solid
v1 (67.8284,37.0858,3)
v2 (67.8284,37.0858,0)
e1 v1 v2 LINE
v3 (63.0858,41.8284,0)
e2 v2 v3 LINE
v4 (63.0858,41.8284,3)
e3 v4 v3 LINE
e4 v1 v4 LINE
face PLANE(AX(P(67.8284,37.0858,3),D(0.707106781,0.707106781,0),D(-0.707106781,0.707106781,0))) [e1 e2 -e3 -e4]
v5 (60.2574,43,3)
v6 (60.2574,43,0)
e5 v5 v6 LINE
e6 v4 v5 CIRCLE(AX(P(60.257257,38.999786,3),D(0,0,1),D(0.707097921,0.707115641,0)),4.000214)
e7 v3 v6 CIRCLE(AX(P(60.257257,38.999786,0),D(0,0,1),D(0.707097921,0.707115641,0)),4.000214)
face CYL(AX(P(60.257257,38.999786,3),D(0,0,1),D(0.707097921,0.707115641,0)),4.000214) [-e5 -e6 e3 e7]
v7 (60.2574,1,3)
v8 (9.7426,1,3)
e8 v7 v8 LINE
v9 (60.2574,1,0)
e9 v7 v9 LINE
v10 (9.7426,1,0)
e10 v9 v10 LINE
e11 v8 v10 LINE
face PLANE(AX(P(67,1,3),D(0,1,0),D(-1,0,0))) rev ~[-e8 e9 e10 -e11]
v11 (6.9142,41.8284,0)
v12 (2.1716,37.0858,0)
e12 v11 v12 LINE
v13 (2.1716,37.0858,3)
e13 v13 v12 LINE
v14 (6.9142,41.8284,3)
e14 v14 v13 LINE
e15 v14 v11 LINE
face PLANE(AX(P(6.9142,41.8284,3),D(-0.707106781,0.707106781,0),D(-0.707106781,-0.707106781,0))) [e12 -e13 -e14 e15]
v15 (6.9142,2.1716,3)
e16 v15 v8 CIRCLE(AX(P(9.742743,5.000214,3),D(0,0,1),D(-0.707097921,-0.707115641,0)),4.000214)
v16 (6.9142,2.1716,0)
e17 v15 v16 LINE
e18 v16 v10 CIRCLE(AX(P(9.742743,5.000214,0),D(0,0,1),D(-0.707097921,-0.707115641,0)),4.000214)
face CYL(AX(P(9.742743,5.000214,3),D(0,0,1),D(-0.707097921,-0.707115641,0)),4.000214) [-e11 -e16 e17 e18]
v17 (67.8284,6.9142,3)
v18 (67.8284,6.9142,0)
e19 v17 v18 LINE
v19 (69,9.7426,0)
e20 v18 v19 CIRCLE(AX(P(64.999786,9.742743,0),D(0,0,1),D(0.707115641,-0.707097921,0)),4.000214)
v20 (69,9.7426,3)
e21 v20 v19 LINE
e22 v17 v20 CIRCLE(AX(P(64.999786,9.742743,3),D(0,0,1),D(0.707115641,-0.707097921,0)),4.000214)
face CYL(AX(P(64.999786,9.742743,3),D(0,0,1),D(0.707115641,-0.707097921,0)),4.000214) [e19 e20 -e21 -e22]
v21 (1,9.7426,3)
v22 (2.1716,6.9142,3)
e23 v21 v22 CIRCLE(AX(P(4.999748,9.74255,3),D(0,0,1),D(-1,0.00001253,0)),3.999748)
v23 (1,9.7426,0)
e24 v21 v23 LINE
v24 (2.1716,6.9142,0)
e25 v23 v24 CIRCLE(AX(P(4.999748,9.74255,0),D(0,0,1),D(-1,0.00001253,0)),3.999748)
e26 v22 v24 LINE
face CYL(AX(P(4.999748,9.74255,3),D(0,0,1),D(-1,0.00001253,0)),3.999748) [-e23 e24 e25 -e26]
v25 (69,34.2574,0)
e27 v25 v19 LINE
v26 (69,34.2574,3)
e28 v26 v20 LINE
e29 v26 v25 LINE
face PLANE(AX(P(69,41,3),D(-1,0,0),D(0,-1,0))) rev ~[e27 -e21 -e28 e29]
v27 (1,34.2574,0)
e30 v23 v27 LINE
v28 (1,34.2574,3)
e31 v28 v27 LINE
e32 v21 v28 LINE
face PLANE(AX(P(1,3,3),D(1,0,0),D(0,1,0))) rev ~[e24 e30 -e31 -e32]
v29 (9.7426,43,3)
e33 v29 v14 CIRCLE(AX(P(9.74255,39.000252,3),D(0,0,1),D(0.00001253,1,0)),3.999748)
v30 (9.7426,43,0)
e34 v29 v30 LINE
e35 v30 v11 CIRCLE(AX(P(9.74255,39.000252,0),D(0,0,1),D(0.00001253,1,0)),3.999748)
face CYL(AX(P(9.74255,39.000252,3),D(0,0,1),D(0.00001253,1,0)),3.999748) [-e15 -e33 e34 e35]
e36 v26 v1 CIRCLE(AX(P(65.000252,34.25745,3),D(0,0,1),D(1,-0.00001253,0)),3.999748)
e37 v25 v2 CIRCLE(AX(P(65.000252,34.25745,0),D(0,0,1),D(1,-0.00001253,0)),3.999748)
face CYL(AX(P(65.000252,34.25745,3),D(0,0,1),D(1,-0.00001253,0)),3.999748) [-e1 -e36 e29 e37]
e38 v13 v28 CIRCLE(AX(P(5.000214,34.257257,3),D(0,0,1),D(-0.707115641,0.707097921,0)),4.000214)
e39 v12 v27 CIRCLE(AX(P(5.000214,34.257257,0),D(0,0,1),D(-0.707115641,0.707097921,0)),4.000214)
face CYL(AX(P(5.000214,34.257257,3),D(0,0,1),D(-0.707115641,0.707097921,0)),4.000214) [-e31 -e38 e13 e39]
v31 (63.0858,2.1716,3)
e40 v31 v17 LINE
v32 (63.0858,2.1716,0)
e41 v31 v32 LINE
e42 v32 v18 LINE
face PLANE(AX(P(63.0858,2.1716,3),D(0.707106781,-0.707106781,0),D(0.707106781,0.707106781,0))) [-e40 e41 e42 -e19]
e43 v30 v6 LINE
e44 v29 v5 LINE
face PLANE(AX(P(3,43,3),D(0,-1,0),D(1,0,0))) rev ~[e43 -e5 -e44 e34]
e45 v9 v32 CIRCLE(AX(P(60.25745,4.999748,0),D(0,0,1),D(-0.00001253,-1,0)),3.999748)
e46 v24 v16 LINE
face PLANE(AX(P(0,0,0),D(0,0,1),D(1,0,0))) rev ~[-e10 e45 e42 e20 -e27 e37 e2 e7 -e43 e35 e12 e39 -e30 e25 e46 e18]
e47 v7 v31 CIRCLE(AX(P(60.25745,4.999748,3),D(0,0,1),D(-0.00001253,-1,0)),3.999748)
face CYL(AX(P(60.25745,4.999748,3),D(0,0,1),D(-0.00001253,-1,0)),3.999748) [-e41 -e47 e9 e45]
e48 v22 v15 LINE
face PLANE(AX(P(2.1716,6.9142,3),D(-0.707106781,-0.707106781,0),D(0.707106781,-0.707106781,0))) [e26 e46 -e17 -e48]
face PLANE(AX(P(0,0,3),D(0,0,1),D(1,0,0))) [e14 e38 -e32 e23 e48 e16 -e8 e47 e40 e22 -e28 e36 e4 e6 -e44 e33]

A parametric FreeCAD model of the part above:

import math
import FreeCAD as App
import Part
import Sketcher

V = App.Vector

doc = App.newDocument("Part")
body = doc.addObject("PartDesign::Body", "Body")

# Sketch on XY plane
sketch1 = body.newObject("Sketcher::SketchObject", "Sketch")
sketch1.AttachmentSupport = (doc.getObject("XY_Plane"), [""])
sketch1.MapMode = "FlatFace"
sketch1.addGeometry([
    Part.ArcOfCircle(Part.Circle(V(3, 3, 0), V(0, 0, 1), 3), math.radians(180), math.radians(270)),  # 0
    Part.LineSegment(V(3, 0, 0), V(67, 0, 0)),  # 1
    Part.ArcOfCircle(Part.Circle(V(67, 3, 0), V(0, 0, 1), 3), math.radians(-90), math.radians(0)),  # 2
    Part.LineSegment(V(70, 3, 0), V(70, 41, 0)),  # 3
    Part.ArcOfCircle(Part.Circle(V(67, 41, 0), V(0, 0, 1), 3), math.radians(0), math.radians(90)),  # 4
    Part.LineSegment(V(67, 44, 0), V(3, 44, 0)),  # 5
    Part.ArcOfCircle(Part.Circle(V(3, 41, 0), V(0, 0, 1), 3), math.radians(90), math.radians(180)),  # 6
    Part.LineSegment(V(0, 41, 0), V(0, 3, 0)),  # 7
], False)
sketch1.addConstraint([
    Sketcher.Constraint("Tangent", 0, 2, 1, 1),
    Sketcher.Constraint("Tangent", 1, 2, 2, 1),
    Sketcher.Constraint("Tangent", 2, 2, 3, 1),
    Sketcher.Constraint("Tangent", 3, 2, 4, 1),
    Sketcher.Constraint("Tangent", 4, 2, 5, 1),
    Sketcher.Constraint("Tangent", 5, 2, 6, 1),
    Sketcher.Constraint("Tangent", 6, 2, 7, 1),
    Sketcher.Constraint("Tangent", 7, 2, 0, 1),
    Sketcher.Constraint("Horizontal", 1),
    Sketcher.Constraint("Vertical", 3),
    Sketcher.Constraint("Horizontal", 5),
    Sketcher.Constraint("Vertical", 7),
    Sketcher.Constraint("Equal", 0, 2),
    Sketcher.Constraint("Equal", 2, 4),
    Sketcher.Constraint("Equal", 4, 6),
    Sketcher.Constraint("PointOnObject", 0, 2, -1),
    Sketcher.Constraint("PointOnObject", 6, 2, -2),
    Sketcher.Constraint("Radius", 0, 3.0),
    Sketcher.Constraint("DistanceX", -1, 1, 2, 2, 70.0),
    Sketcher.Constraint("DistanceY", -1, 1, 4, 2, 44.0),
])
pad1 = body.newObject("PartDesign::Pad", "Pad")
pad1.Profile = sketch1
pad1.Length = 3

# Sketch on XY plane
sketch2 = body.newObject("Sketcher::SketchObject", "Sketch001")
sketch2.AttachmentSupport = (doc.getObject("XY_Plane"), [""])
sketch2.MapMode = "FlatFace"
sketch2.AttachmentOffset = App.Placement(V(0, 0, 3), App.Rotation())
sketch2.addGeometry([
    Part.ArcOfCircle(Part.Circle(V(3, 41, 0), V(0, 0, 1), 3), math.radians(90), math.radians(180)),  # 0
    Part.LineSegment(V(0, 41, 0), V(0, 3, 0)),  # 1
    Part.ArcOfCircle(Part.Circle(V(3, 3, 0), V(0, 0, 1), 3), math.radians(180), math.radians(270)),  # 2
    Part.LineSegment(V(3, 0, 0), V(67, 0, 0)),  # 3
    Part.ArcOfCircle(Part.Circle(V(67, 3, 0), V(0, 0, 1), 3), math.radians(-90), math.radians(0)),  # 4
    Part.LineSegment(V(70, 3, 0), V(70, 41, 0)),  # 5
    Part.ArcOfCircle(Part.Circle(V(67, 41, 0), V(0, 0, 1), 3), math.radians(0), math.radians(90)),  # 6
    Part.LineSegment(V(67, 44, 0), V(3, 44, 0)),  # 7
    Part.ArcOfCircle(Part.Circle(V(3, 41, 0), V(0, 0, 1), 2), math.radians(90), math.radians(180)),  # 8
    Part.LineSegment(V(3, 43, 0), V(67, 43, 0)),  # 9
    Part.ArcOfCircle(Part.Circle(V(67, 41, 0), V(0, 0, 1), 2), math.radians(0), math.radians(90)),  # 10
    Part.LineSegment(V(69, 41, 0), V(69, 3, 0)),  # 11
    Part.ArcOfCircle(Part.Circle(V(67, 3, 0), V(0, 0, 1), 2), math.radians(-90), math.radians(0)),  # 12
    Part.LineSegment(V(67, 1, 0), V(3, 1, 0)),  # 13
    Part.ArcOfCircle(Part.Circle(V(3, 3, 0), V(0, 0, 1), 2), math.radians(180), math.radians(270)),  # 14
    Part.LineSegment(V(1, 3, 0), V(1, 41, 0)),  # 15
], False)
sketch2.addConstraint([
    Sketcher.Constraint("Tangent", 0, 2, 1, 1),
    Sketcher.Constraint("Tangent", 1, 2, 2, 1),
    Sketcher.Constraint("Tangent", 2, 2, 3, 1),
    Sketcher.Constraint("Tangent", 3, 2, 4, 1),
    Sketcher.Constraint("Tangent", 4, 2, 5, 1),
    Sketcher.Constraint("Tangent", 5, 2, 6, 1),
    Sketcher.Constraint("Tangent", 6, 2, 7, 1),
    Sketcher.Constraint("Tangent", 7, 2, 0, 1),
    Sketcher.Constraint("Tangent", 8, 1, 9, 1),
    Sketcher.Constraint("Tangent", 9, 2, 10, 2),
    Sketcher.Constraint("Tangent", 10, 1, 11, 1),
    Sketcher.Constraint("Tangent", 11, 2, 12, 2),
    Sketcher.Constraint("Tangent", 12, 1, 13, 1),
    Sketcher.Constraint("Tangent", 13, 2, 14, 2),
    Sketcher.Constraint("Tangent", 14, 1, 15, 1),
    Sketcher.Constraint("Tangent", 15, 2, 8, 2),
    Sketcher.Constraint("Vertical", 1),
    Sketcher.Constraint("Horizontal", 3),
    Sketcher.Constraint("Vertical", 5),
    Sketcher.Constraint("Horizontal", 7),
    Sketcher.Constraint("Horizontal", 9),
    Sketcher.Constraint("Vertical", 11),
    Sketcher.Constraint("Horizontal", 13),
    Sketcher.Constraint("Vertical", 15),
    Sketcher.Constraint("Coincident", 8, 3, 0, 3),
    Sketcher.Constraint("Coincident", 10, 3, 6, 3),
    Sketcher.Constraint("Coincident", 12, 3, 4, 3),
    Sketcher.Constraint("Equal", 0, 2),
    Sketcher.Constraint("Equal", 2, 4),
    Sketcher.Constraint("Equal", 4, 6),
    Sketcher.Constraint("Equal", 12, 14),
    Sketcher.Constraint("PointOnObject", 0, 2, -2),
    Sketcher.Constraint("PointOnObject", 2, 2, -1),
    Sketcher.Constraint("DistanceY", -1, 1, 12, 1, 1.0),
    Sketcher.Constraint("Radius", 0, 3.0),
    Sketcher.Constraint("DistanceX", 3, 1, 3, 2, 64.0),
    Sketcher.Constraint("DistanceY", 1, 2, 1, 1, 38.0),
])
pocket1 = body.newObject("PartDesign::Pocket", "Pocket")
pocket1.Profile = sketch2
pocket1.Type = "ThroughAll"

# Sketch on XY plane
sketch3 = body.newObject("Sketcher::SketchObject", "Sketch002")
sketch3.AttachmentSupport = (doc.getObject("XY_Plane"), [""])
sketch3.MapMode = "FlatFace"
sketch3.AttachmentOffset = App.Placement(V(0, 0, 3), App.Rotation())
sketch3.addGeometry([
    Part.LineSegment(V(9.7426, 43, 0), V(3, 43, 0)),  # 0
    Part.ArcOfCircle(Part.Circle(V(3, 41, 0), V(0, 0, 1), 2), math.radians(90), math.radians(180)),  # 1
    Part.LineSegment(V(1, 41, 0), V(1, 34.2574, 0)),  # 2
    Part.ArcOfCircle(Part.Circle(V(5, 34.2574, 0), V(0, 0, 1), 3.999962), math.radians(135), math.radians(180)),  # 3
    Part.LineSegment(V(2.1716, 37.0858, 0), V(6.9142, 41.8284, 0)),  # 4
    Part.ArcOfCircle(Part.Circle(V(9.7426, 39, 0), V(0, 0, 1), 4), math.radians(90), math.radians(135)),  # 5
    Part.LineSegment(V(67, 43, 0), V(60.2574, 43, 0)),  # 6
    Part.ArcOfCircle(Part.Circle(V(60.2574, 39, 0), V(0, 0, 1), 3.999962), math.radians(45), math.radians(90)),  # 7
    Part.LineSegment(V(63.0858, 41.8284, 0), V(67.8284, 37.0858, 0)),  # 8
    Part.ArcOfCircle(Part.Circle(V(65, 34.2574, 0), V(0, 0, 1), 4), math.radians(0), math.radians(45)),  # 9
    Part.LineSegment(V(69, 34.2574, 0), V(69, 41, 0)),  # 10
    Part.ArcOfCircle(Part.Circle(V(67, 41, 0), V(0, 0, 1), 2), math.radians(0), math.radians(90)),  # 11
    Part.ArcOfCircle(Part.Circle(V(5, 9.7426, 0), V(0, 0, 1), 4), math.radians(180), math.radians(225)),  # 12
    Part.LineSegment(V(1, 9.7426, 0), V(1, 3, 0)),  # 13
    Part.ArcOfCircle(Part.Circle(V(3, 3, 0), V(0, 0, 1), 2), math.radians(180), math.radians(270)),  # 14
    Part.LineSegment(V(3, 1, 0), V(9.7426, 1, 0)),  # 15
    Part.ArcOfCircle(Part.Circle(V(9.7426, 5, 0), V(0, 0, 1), 3.999962), math.radians(-135), math.radians(-90)),  # 16
    Part.LineSegment(V(6.9142, 2.1716, 0), V(2.1716, 6.9142, 0)),  # 17
    Part.LineSegment(V(69, 3, 0), V(69, 9.7426, 0)),  # 18
    Part.ArcOfCircle(Part.Circle(V(65, 9.7426, 0), V(0, 0, 1), 3.999962), math.radians(-45), math.radians(0)),  # 19
    Part.LineSegment(V(67.8284, 6.9142, 0), V(63.0858, 2.1716, 0)),  # 20
    Part.ArcOfCircle(Part.Circle(V(60.2574, 5, 0), V(0, 0, 1), 4), math.radians(-90), math.radians(-45)),  # 21
    Part.LineSegment(V(60.2574, 1, 0), V(67, 1, 0)),  # 22
    Part.ArcOfCircle(Part.Circle(V(67, 3, 0), V(0, 0, 1), 2), math.radians(-90), math.radians(0)),  # 23
], False)
sketch3.addConstraint([
    Sketcher.Constraint("Tangent", 0, 2, 1, 1),
    Sketcher.Constraint("Tangent", 1, 2, 2, 1),
    Sketcher.Constraint("Tangent", 2, 2, 3, 2),
    Sketcher.Constraint("Tangent", 3, 1, 4, 1),
    Sketcher.Constraint("Tangent", 4, 2, 5, 2),
    Sketcher.Constraint("Tangent", 5, 1, 0, 1),
    Sketcher.Constraint("Tangent", 6, 2, 7, 2),
    Sketcher.Constraint("Tangent", 7, 1, 8, 1),
    Sketcher.Constraint("Tangent", 8, 2, 9, 2),
    Sketcher.Constraint("Tangent", 9, 1, 10, 1),
    Sketcher.Constraint("Tangent", 10, 2, 11, 1),
    Sketcher.Constraint("Tangent", 11, 2, 6, 1),
    Sketcher.Constraint("Tangent", 12, 1, 13, 1),
    Sketcher.Constraint("Tangent", 13, 2, 14, 1),
    Sketcher.Constraint("Tangent", 14, 2, 15, 1),
    Sketcher.Constraint("Tangent", 15, 2, 16, 2),
    Sketcher.Constraint("Tangent", 16, 1, 17, 1),
    Sketcher.Constraint("Tangent", 17, 2, 12, 2),
    Sketcher.Constraint("Tangent", 18, 2, 19, 2),
    Sketcher.Constraint("Tangent", 19, 1, 20, 1),
    Sketcher.Constraint("Tangent", 20, 2, 21, 2),
    Sketcher.Constraint("Tangent", 21, 1, 22, 1),
    Sketcher.Constraint("Tangent", 22, 2, 23, 1),
    Sketcher.Constraint("Tangent", 23, 2, 18, 1),
    Sketcher.Constraint("Horizontal", 0),
    Sketcher.Constraint("Vertical", 2),
    Sketcher.Constraint("Horizontal", 6),
    Sketcher.Constraint("Vertical", 10),
    Sketcher.Constraint("Vertical", 13),
    Sketcher.Constraint("Horizontal", 15),
    Sketcher.Constraint("Vertical", 18),
    Sketcher.Constraint("Horizontal", 22),
    Sketcher.Constraint("Equal", 3, 5),
    Sketcher.Constraint("Equal", 5, 7),
    Sketcher.Constraint("Equal", 7, 9),
    Sketcher.Constraint("Equal", 1, 11),
    Sketcher.Constraint("Equal", 9, 12),
    Sketcher.Constraint("Equal", 11, 14),
    Sketcher.Constraint("Equal", 12, 16),
    Sketcher.Constraint("Equal", 16, 19),
    Sketcher.Constraint("Equal", 19, 21),
    Sketcher.Constraint("Equal", 14, 23),
    Sketcher.Constraint("Perpendicular", 4, 8),
    Sketcher.Constraint("Parallel", 8, 17),
    Sketcher.Constraint("Perpendicular", 17, 20),
    Sketcher.Constraint("Horizontal", 5, 3, 7, 3),
    Sketcher.Constraint("Horizontal", 3, 3, 9, 3),
    Sketcher.Constraint("Horizontal", 12, 3, 19, 3),
    Sketcher.Constraint("Horizontal", 16, 3, 21, 3),
    Sketcher.Constraint("Horizontal", 4, 2, 7, 1),
    Sketcher.Constraint("Vertical", 3, 3, 12, 3),
    Sketcher.Constraint("Vertical", 5, 3, 16, 3),
    Sketcher.Constraint("Vertical", 9, 3, 19, 3),
    Sketcher.Constraint("Radius", 1, 2.0),
    Sketcher.Constraint("Radius", 3, 4.0),
    Sketcher.Constraint("DistanceX", -1, 1, 1, 3, 3.0),
    Sketcher.Constraint("DistanceY", -1, 1, 14, 3, 3.0),
    Sketcher.Constraint("DistanceY", -1, 1, 1, 3, 41.0),
    Sketcher.Constraint("DistanceX", -1, 1, 9, 3, 65.0),
    Sketcher.Constraint("DistanceY", 3, 3, 0, 2, 8.7426),
])
pocket2 = body.newObject("PartDesign::Pocket", "Pocket001")
pocket2.Profile = sketch3
pocket2.Type = "ThroughAll"

doc.recompute()
